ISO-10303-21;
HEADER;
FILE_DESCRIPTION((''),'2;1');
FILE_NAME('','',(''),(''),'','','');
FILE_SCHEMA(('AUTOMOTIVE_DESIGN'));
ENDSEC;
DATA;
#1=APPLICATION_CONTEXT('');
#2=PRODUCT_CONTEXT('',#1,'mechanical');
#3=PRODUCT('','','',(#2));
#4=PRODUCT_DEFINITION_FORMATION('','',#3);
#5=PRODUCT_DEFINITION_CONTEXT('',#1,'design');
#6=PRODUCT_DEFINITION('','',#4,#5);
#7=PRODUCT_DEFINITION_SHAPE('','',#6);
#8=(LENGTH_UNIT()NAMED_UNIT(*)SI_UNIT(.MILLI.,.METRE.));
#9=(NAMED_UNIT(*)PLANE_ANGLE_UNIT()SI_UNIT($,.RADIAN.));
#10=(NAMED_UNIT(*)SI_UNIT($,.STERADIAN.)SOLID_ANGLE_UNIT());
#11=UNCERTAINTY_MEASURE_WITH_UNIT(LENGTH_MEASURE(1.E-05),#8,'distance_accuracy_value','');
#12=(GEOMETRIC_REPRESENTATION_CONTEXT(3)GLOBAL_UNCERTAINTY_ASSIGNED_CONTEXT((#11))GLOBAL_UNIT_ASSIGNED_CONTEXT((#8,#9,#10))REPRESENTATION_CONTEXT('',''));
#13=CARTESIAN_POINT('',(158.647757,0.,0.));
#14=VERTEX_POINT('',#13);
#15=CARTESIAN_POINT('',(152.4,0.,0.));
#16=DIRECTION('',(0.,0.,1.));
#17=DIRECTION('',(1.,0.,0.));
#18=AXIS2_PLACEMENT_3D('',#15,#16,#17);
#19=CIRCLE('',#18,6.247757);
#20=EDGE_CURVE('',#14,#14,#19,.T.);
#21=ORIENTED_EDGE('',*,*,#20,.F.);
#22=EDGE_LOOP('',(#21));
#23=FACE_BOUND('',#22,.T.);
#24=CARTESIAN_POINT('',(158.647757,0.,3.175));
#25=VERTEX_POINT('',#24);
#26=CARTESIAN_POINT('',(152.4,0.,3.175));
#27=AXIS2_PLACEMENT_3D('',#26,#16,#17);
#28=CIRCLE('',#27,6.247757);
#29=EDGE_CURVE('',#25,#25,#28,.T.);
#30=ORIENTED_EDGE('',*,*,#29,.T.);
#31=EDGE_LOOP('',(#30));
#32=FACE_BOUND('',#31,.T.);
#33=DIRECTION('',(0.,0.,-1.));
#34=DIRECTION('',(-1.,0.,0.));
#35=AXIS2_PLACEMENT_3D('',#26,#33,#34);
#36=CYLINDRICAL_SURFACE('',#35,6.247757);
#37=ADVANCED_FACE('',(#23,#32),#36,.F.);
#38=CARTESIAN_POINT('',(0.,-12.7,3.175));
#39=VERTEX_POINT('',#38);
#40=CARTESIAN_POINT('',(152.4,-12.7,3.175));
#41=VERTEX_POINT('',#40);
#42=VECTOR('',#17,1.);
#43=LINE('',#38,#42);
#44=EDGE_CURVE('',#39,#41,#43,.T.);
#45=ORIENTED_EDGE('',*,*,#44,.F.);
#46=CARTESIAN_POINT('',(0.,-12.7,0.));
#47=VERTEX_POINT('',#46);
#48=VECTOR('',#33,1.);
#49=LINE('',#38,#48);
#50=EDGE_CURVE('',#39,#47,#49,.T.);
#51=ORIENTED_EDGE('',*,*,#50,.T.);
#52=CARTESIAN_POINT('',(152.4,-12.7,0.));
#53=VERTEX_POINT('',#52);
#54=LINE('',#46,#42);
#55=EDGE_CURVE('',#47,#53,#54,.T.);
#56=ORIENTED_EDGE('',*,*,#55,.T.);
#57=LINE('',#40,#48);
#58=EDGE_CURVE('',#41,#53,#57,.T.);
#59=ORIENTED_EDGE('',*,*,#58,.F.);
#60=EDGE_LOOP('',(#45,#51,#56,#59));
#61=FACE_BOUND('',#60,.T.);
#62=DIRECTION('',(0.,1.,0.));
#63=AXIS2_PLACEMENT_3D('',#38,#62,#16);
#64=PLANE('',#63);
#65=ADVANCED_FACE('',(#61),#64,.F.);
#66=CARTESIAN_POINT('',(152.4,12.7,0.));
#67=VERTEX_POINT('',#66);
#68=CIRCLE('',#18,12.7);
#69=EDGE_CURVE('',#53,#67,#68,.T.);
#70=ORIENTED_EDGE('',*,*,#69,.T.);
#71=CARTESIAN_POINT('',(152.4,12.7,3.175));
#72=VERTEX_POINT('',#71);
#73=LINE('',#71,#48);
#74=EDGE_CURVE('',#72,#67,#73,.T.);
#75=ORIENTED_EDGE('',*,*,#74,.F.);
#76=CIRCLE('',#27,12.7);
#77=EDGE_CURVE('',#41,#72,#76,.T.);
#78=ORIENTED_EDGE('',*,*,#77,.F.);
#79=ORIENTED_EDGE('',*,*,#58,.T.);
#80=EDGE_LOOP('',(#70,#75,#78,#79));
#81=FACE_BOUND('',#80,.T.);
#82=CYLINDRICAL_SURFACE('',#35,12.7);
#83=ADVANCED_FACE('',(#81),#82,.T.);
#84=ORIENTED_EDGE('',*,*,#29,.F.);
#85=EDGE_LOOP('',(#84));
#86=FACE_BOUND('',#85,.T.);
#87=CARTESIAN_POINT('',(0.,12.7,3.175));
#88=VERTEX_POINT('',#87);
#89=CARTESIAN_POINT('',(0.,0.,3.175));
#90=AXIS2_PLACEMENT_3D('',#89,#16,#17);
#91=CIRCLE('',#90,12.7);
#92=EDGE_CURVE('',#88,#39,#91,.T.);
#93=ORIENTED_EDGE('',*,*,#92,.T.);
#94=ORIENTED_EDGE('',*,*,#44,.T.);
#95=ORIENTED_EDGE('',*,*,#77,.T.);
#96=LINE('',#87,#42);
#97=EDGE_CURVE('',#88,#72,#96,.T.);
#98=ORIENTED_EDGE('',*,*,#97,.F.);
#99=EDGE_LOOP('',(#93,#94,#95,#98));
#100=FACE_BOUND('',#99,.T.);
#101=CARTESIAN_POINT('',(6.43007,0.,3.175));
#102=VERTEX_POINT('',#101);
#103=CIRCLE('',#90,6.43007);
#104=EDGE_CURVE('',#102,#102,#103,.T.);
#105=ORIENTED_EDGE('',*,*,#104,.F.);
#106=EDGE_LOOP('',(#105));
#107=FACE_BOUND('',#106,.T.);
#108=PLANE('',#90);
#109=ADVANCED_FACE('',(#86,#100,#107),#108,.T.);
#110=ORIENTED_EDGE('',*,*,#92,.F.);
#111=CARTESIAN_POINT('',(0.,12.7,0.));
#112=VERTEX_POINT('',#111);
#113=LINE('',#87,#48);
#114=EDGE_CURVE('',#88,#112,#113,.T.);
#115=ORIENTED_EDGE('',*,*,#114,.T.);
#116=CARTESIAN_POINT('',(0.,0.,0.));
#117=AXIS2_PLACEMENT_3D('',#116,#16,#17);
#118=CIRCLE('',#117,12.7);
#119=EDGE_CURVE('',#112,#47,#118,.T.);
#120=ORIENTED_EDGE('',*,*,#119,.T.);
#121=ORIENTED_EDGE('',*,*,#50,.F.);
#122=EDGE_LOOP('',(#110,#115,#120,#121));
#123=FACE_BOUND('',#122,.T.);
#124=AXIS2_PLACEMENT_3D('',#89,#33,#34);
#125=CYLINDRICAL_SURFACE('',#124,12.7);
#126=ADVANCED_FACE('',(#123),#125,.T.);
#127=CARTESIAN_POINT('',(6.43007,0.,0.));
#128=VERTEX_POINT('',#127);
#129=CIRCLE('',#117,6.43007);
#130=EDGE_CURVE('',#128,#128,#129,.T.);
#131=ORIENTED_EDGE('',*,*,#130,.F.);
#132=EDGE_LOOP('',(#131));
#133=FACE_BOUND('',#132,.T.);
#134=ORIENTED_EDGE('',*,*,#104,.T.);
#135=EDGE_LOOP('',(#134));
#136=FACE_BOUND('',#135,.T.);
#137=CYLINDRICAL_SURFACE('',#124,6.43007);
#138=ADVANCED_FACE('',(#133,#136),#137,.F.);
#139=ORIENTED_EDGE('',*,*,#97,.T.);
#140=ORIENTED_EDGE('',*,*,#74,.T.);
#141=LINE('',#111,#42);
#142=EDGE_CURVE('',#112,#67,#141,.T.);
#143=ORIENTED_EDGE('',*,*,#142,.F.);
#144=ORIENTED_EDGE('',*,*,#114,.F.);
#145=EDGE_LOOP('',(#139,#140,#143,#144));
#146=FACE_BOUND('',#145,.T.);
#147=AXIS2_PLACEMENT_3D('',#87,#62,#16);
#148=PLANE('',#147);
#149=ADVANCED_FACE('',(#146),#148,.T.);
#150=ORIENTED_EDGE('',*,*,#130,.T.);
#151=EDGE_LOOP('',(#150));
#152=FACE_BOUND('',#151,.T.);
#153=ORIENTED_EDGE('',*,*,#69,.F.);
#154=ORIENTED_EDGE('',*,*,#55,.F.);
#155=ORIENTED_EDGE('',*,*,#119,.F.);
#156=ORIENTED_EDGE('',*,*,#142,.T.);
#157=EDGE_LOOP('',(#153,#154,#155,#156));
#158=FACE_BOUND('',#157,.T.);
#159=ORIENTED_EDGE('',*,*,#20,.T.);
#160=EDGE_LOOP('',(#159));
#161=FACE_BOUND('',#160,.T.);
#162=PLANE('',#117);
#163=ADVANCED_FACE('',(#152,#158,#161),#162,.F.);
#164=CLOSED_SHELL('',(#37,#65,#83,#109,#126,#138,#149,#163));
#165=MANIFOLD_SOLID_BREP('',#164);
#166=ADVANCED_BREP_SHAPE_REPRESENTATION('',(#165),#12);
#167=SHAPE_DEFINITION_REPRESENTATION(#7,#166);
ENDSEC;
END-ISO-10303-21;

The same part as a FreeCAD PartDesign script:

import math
import FreeCAD as App
import Part
import Sketcher

V = App.Vector
Q = App.Units.Quantity

doc = App.newDocument("Part")
body = doc.addObject("PartDesign::Body", "Body")

# Sketch on XY plane
sketch1 = body.newObject("Sketcher::SketchObject", "Sketch")
sketch1.AttachmentSupport = (doc.getObject("XY_Plane"), [""])
sketch1.MapMode = "FlatFace"
sketch1.addGeometry(Part.LineSegment(V(152, 13, 0), V(0, 13, 0)), False)
sketch1.addGeometry(Part.ArcOfCircle(Part.Circle(V(0, 0, 0), V(0, 0, 1), 13), math.radians(90), math.radians(270)), False)
sketch1.addGeometry(Part.LineSegment(V(0, -13, 0), V(152, -13, 0)), False)
sketch1.addGeometry(Part.ArcOfCircle(Part.Circle(V(152, 0, 0), V(0, 0, 1), 13), math.radians(-90), math.radians(90)), False)
sketch1.addGeometry(Part.Circle(V(152, 0, 0), V(0, 0, 1), 6), False)
sketch1.addGeometry(Part.Circle(V(0, 0, 0), V(0, 0, 1), 6), False)
sketch1.addConstraint(Sketcher.Constraint("Tangent", 0, 2, 1, 1))
sketch1.addConstraint(Sketcher.Constraint("Tangent", 1, 2, 2, 1))
sketch1.addConstraint(Sketcher.Constraint("Tangent", 2, 2, 3, 1))
sketch1.addConstraint(Sketcher.Constraint("Tangent", 3, 2, 0, 1))
sketch1.addConstraint(Sketcher.Constraint("Horizontal", 0))
sketch1.addConstraint(Sketcher.Constraint("Horizontal", 2))
sketch1.addConstraint(Sketcher.Constraint("Coincident", 1, 3, -1, 1))
sketch1.addConstraint(Sketcher.Constraint("Coincident", 5, 3, -1, 1))
sketch1.addConstraint(Sketcher.Constraint("Coincident", 4, 3, 3, 3))
sketch1.addConstraint(Sketcher.Constraint("Radius", 1, Q("0.5 in")))
sketch1.addConstraint(Sketcher.Constraint("DistanceX", 0, 2, 0, 1, Q("6 in")))
sketch1.addConstraint(Sketcher.Constraint("Diameter", 5, Q("12.86014 mm")))
sketch1.addConstraint(Sketcher.Constraint("Diameter", 4, Q("12.495513 mm")))
pad1 = body.newObject("PartDesign::Pad", "Pad")
pad1.Profile = sketch1
pad1.Length = Q("0.125 in")

doc.recompute()
